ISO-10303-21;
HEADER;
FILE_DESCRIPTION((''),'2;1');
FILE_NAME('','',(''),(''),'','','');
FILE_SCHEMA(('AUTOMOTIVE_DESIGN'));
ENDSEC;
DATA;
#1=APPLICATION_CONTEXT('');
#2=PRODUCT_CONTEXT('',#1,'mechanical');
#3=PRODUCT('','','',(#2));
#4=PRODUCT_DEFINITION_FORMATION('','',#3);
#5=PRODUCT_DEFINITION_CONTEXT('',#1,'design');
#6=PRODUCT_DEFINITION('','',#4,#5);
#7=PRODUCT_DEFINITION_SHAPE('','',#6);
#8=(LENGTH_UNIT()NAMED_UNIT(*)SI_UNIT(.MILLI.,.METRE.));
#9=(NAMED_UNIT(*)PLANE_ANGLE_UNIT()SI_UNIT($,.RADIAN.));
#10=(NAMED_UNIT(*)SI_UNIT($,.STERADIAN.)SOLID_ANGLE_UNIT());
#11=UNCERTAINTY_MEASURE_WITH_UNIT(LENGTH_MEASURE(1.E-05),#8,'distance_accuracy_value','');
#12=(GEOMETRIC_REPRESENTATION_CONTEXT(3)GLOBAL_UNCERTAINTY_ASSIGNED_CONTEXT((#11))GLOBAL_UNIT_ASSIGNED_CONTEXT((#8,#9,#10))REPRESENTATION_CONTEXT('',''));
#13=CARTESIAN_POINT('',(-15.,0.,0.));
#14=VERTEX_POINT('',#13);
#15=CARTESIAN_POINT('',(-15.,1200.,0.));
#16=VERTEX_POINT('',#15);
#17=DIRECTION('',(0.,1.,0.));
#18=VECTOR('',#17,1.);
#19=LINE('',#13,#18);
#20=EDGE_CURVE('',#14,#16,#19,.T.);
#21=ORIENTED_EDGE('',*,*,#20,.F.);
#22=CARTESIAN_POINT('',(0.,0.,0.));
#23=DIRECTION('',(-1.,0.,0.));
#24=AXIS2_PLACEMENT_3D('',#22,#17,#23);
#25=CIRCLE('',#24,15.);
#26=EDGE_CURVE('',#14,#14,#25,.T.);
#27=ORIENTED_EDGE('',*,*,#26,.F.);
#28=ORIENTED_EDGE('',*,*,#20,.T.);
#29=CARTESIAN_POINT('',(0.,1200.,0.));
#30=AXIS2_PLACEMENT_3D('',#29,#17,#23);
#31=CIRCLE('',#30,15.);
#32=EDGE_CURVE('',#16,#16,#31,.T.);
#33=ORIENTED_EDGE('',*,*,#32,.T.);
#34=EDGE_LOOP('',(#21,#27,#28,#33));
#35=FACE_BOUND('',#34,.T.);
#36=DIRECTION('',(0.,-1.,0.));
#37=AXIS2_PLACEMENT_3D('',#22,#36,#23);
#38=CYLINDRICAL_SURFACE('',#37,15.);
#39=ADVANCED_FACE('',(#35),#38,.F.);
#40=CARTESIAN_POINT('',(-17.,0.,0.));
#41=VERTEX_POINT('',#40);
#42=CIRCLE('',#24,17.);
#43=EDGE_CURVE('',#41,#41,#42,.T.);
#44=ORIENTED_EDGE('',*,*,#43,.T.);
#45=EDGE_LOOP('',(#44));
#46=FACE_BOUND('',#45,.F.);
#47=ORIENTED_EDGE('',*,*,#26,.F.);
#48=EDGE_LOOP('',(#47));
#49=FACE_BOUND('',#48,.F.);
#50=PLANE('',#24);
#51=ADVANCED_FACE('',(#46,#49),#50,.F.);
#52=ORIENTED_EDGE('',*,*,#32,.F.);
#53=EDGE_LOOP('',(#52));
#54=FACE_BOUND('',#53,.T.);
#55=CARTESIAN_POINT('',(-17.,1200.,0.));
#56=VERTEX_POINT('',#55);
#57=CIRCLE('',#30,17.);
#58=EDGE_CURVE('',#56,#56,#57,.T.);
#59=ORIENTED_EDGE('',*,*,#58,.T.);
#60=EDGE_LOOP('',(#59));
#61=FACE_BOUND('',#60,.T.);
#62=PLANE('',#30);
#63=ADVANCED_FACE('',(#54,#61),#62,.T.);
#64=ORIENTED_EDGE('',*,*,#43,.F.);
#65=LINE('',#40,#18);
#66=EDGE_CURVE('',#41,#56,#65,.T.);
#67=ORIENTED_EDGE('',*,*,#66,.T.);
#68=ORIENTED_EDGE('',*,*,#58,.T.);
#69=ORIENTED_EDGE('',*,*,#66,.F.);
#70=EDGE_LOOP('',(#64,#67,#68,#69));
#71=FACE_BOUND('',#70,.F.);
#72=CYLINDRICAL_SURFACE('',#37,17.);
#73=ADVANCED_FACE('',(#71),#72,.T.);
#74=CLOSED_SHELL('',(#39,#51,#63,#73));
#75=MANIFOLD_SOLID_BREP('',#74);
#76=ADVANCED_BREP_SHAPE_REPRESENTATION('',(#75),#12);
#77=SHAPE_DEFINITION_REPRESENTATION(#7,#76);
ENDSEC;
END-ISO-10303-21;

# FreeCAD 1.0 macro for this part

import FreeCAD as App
import Part
import Sketcher

doc = App.newDocument("Part")
params = doc.addObject("Spreadsheet::Sheet", "Params")
for row, (alias, value) in enumerate([
    ("sketch1_diameter", "34 mm"),
    ("sketch1_diameter2", "30 mm"),
    ("pad1_length", "1200 mm"),
], start=1):
    params.set(f"A{row}", alias)
    params.set(f"B{row}", "=" + value)
    params.setAlias(f"B{row}", alias)

body = doc.addObject("PartDesign::Body", "Body")

sketch1 = body.newObject("Sketcher::SketchObject", "Sketch")
sketch1.AttachmentSupport = (doc.getObject("XZ_Plane"), [""])
sketch1.MapMode = "FlatFace"
sketch1.addGeometry([
    Part.Circle(App.Vector(0, 0, 0), App.Vector(0, 0, 1), 17),
    Part.Circle(App.Vector(0, 0, 0), App.Vector(0, 0, 1), 15),
], False)
sketch1.addConstraint([
    Sketcher.Constraint("Coincident", 0, 3, -1, 1),
    Sketcher.Constraint("Coincident", 1, 3, -1, 1),
    Sketcher.Constraint("Diameter", 0, 34.0),
    Sketcher.Constraint("Diameter", 1, 30.0),
])
sketch1.setExpression("Constraints[2]", "Params.sketch1_diameter")
sketch1.setExpression("Constraints[3]", "Params.sketch1_diameter2")
pad1 = body.newObject("PartDesign::Pad", "Pad")
pad1.Profile = sketch1
pad1.setExpression("Length", "Params.pad1_length")
pad1.Reversed = True

doc.recompute()
